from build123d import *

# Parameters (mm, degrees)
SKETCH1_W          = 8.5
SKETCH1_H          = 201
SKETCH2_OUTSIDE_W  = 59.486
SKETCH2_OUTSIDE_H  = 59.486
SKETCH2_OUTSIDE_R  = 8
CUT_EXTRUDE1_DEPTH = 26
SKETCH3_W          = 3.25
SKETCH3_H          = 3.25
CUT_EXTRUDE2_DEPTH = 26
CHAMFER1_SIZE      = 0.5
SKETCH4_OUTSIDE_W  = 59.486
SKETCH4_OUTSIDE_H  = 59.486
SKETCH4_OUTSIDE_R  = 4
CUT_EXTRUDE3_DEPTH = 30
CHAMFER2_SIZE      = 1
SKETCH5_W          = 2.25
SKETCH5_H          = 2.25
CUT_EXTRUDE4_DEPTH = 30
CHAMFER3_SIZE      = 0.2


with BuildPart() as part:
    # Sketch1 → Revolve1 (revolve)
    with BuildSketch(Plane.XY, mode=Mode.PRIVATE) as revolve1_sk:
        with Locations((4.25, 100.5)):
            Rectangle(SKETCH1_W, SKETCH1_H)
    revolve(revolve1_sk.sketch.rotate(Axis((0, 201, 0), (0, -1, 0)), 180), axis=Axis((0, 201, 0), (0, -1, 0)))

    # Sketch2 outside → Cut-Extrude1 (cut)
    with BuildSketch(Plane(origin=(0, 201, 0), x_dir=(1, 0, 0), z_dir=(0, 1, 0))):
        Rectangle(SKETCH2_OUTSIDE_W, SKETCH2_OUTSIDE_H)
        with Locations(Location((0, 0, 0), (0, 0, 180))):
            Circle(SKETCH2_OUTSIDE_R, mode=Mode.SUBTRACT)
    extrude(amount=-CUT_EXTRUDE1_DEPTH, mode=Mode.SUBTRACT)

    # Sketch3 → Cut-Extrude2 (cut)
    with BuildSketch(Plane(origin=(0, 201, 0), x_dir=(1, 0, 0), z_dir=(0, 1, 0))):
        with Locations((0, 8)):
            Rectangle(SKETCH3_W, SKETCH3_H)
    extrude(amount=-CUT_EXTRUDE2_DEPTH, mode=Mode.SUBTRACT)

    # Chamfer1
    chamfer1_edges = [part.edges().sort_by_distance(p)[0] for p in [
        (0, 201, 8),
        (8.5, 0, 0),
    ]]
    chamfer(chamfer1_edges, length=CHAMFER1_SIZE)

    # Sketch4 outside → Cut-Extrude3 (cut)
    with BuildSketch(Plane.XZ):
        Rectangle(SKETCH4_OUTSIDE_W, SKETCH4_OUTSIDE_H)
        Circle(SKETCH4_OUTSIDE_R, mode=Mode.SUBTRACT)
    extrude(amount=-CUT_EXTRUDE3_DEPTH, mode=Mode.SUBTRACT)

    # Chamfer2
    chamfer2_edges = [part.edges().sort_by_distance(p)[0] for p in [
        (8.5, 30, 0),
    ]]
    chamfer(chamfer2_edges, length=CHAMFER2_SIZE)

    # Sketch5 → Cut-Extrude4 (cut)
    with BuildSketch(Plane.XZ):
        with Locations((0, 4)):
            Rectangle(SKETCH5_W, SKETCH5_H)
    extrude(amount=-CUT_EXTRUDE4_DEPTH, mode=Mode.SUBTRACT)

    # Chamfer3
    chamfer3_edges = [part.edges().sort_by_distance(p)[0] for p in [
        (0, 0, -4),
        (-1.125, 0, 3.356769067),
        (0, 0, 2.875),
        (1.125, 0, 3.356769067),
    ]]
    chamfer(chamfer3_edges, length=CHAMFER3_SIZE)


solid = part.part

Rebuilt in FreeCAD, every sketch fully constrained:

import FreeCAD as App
import Part
import Sketcher

V = App.Vector
Q = App.Units.Quantity


def edges_at(feature, points):
    """Names of the edges that pass closest to the given points."""
    edges = feature.Shape.Edges
    near = lambda p: min(range(len(edges)), key=lambda i: edges[i].distToShape(Part.Vertex(*p))[0])
    return sorted({f"Edge{near(p) + 1}" for p in points})

doc = App.newDocument("Part")
body = doc.addObject("PartDesign::Body", "Body")

# Sketch on XY plane
sketch1 = body.newObject("Sketcher::SketchObject", "Sketch")
sketch1.AttachmentSupport = (doc.getObject("XY_Plane"), [""])
sketch1.MapMode = "FlatFace"
sketch1.addGeometry(Part.LineSegment(V(0, 201, 0), V(0, 0, 0)), False)
sketch1.addGeometry(Part.LineSegment(V(0, 0, 0), V(8, 0, 0)), False)
sketch1.addGeometry(Part.LineSegment(V(8, 0, 0), V(8, 201, 0)), False)
sketch1.addGeometry(Part.LineSegment(V(8, 201, 0), V(0, 201, 0)), False)
sketch1.addConstraint(Sketcher.Constraint("Coincident", 0, 2, 1, 1))
sketch1.addConstraint(Sketcher.Constraint("Coincident", 1, 2, 2, 1))
sketch1.addConstraint(Sketcher.Constraint("Coincident", 2, 2, 3, 1))
sketch1.addConstraint(Sketcher.Constraint("Coincident", 3, 2, 0, 1))
sketch1.addConstraint(Sketcher.Constraint("Vertical", 0))
sketch1.addConstraint(Sketcher.Constraint("Horizontal", 1))
sketch1.addConstraint(Sketcher.Constraint("Vertical", 2))
sketch1.addConstraint(Sketcher.Constraint("Horizontal", 3))
sketch1.addConstraint(Sketcher.Constraint("Coincident", 0, 2, -1, 1))
sketch1.addConstraint(Sketcher.Constraint("DistanceY", 0, 2, 0, 1, Q("201 mm")))
sketch1.addConstraint(Sketcher.Constraint("DistanceX", 1, 1, 1, 2, Q("8.5 mm")))
revolution = body.newObject("PartDesign::Revolution", "Revolution")
revolution.Profile = sketch1
revolution.ReferenceAxis = (sketch1, ["V_Axis"])
revolution.Angle = 360

# Sketch on XZ plane
sketch2 = body.newObject("Sketcher::SketchObject", "Sketch001")
sketch2.AttachmentSupport = (doc.getObject("XZ_Plane"), [""])
sketch2.MapMode = "FlatFace"
sketch2.AttachmentOffset = App.Placement(V(0, 0, -201), App.Rotation())
sketch2.addGeometry(Part.LineSegment(V(-30, -30, 0), V(-30, 30, 0)), False)
sketch2.addGeometry(Part.LineSegment(V(-30, 30, 0), V(30, 30, 0)), False)
sketch2.addGeometry(Part.LineSegment(V(30, 30, 0), V(30, -30, 0)), False)
sketch2.addGeometry(Part.LineSegment(V(30, -30, 0), V(-30, -30, 0)), False)
sketch2.addGeometry(Part.Circle(V(0, 0, 0), V(0, 0, 1), 8), False)
sketch2.addConstraint(Sketcher.Constraint("Coincident", 0, 2, 1, 1))
sketch2.addConstraint(Sketcher.Constraint("Coincident", 1, 2, 2, 1))
sketch2.addConstraint(Sketcher.Constraint("Coincident", 2, 2, 3, 1))
sketch2.addConstraint(Sketcher.Constraint("Coincident", 3, 2, 0, 1))
sketch2.addConstraint(Sketcher.Constraint("Vertical", 0))
sketch2.addConstraint(Sketcher.Constraint("Horizontal", 1))
sketch2.addConstraint(Sketcher.Constraint("Vertical", 2))
sketch2.addConstraint(Sketcher.Constraint("Horizontal", 3))
sketch2.addConstraint(Sketcher.Constraint("Coincident", 4, 3, -1, 1))
sketch2.addConstraint(Sketcher.Constraint("Symmetric", 0, 2, 2, 2, -1, 1))
sketch2.addConstraint(Sketcher.Constraint("Equal", 3, 0))
sketch2.addConstraint(Sketcher.Constraint("Diameter", 4, Q("16 mm")))
sketch2.addConstraint(Sketcher.Constraint("DistanceX", 1, 1, 1, 2, Q("59.486 mm")))
pocket1 = body.newObject("PartDesign::Pocket", "Pocket")
pocket1.Profile = sketch2
pocket1.Length = 26
pocket1.Reversed = True

# Sketch on XZ plane
sketch3 = body.newObject("Sketcher::SketchObject", "Sketch002")
sketch3.AttachmentSupport = (doc.getObject("XZ_Plane"), [""])
sketch3.MapMode = "FlatFace"
sketch3.AttachmentOffset = App.Placement(V(0, 0, -201), App.Rotation())
sketch3.addGeometry(Part.LineSegment(V(-1.6, -9.6, 0), V(-1.6, -6.4, 0)), False)
sketch3.addGeometry(Part.LineSegment(V(-1.6, -6.4, 0), V(1.6, -6.4, 0)), False)
sketch3.addGeometry(Part.LineSegment(V(1.6, -6.4, 0), V(1.6, -9.6, 0)), False)
sketch3.addGeometry(Part.LineSegment(V(1.6, -9.6, 0), V(-1.6, -9.6, 0)), False)
sketch3.addConstraint(Sketcher.Constraint("Coincident", 0, 2, 1, 1))
sketch3.addConstraint(Sketcher.Constraint("Coincident", 1, 2, 2, 1))
sketch3.addConstraint(Sketcher.Constraint("Coincident", 2, 2, 3, 1))
sketch3.addConstraint(Sketcher.Constraint("Coincident", 3, 2, 0, 1))
sketch3.addConstraint(Sketcher.Constraint("Vertical", 0))
sketch3.addConstraint(Sketcher.Constraint("Horizontal", 1))
sketch3.addConstraint(Sketcher.Constraint("Vertical", 2))
sketch3.addConstraint(Sketcher.Constraint("Horizontal", 3))
sketch3.addConstraint(Sketcher.Constraint("Equal", 3, 0))
sketch3.addConstraint(Sketcher.Constraint("DistanceX", 1, 1, 1, 2, Q("3.25 mm")))
sketch3.addConstraint(Sketcher.Constraint("DistanceX", 0, 2, -1, 1, Q("1.625 mm")))
sketch3.addConstraint(Sketcher.Constraint("DistanceY", 0, 2, -1, 1, Q("6.375 mm")))
pocket2 = body.newObject("PartDesign::Pocket", "Pocket001")
pocket2.Profile = sketch3
pocket2.Length = 26
pocket2.Reversed = True
doc.recompute()

chamfer = body.newObject("PartDesign::Chamfer", "Chamfer")
chamfer.Base = (pocket2, edges_at(pocket2, [(0, 201, 8), (8.5, 0, 0)]))
chamfer.Size = 0.5

# Sketch on XZ plane
sketch4 = body.newObject("Sketcher::SketchObject", "Sketch003")
sketch4.AttachmentSupport = (doc.getObject("XZ_Plane"), [""])
sketch4.MapMode = "FlatFace"
sketch4.addGeometry(Part.LineSegment(V(-29.7, 29.7, 0), V(-29.7, -29.7, 0)), False)
sketch4.addGeometry(Part.LineSegment(V(-29.7, -29.7, 0), V(29.7, -29.7, 0)), False)
sketch4.addGeometry(Part.LineSegment(V(29.7, -29.7, 0), V(29.7, 29.7, 0)), False)
sketch4.addGeometry(Part.LineSegment(V(29.7, 29.7, 0), V(-29.7, 29.7, 0)), False)
sketch4.addGeometry(Part.Circle(V(0, 0, 0), V(0, 0, 1), 4), False)
sketch4.addConstraint(Sketcher.Constraint("Coincident", 0, 2, 1, 1))
sketch4.addConstraint(Sketcher.Constraint("Coincident", 1, 2, 2, 1))
sketch4.addConstraint(Sketcher.Constraint("Coincident", 2, 2, 3, 1))
sketch4.addConstraint(Sketcher.Constraint("Coincident", 3, 2, 0, 1))
sketch4.addConstraint(Sketcher.Constraint("Vertical", 0))
sketch4.addConstraint(Sketcher.Constraint("Horizontal", 1))
sketch4.addConstraint(Sketcher.Constraint("Vertical", 2))
sketch4.addConstraint(Sketcher.Constraint("Horizontal", 3))
sketch4.addConstraint(Sketcher.Constraint("Coincident", 4, 3, -1, 1))
sketch4.addConstraint(Sketcher.Constraint("Symmetric", 0, 2, 2, 2, -1, 1))
sketch4.addConstraint(Sketcher.Constraint("Equal", 3, 0))
sketch4.addConstraint(Sketcher.Constraint("Diameter", 4, Q("8 mm")))
sketch4.addConstraint(Sketcher.Constraint("DistanceX", 1, 1, 1, 2, Q("59.486 mm")))
pocket3 = body.newObject("PartDesign::Pocket", "Pocket002")
pocket3.Profile = sketch4
pocket3.Length = 30
doc.recompute()

chamfer2 = body.newObject("PartDesign::Chamfer", "Chamfer001")
chamfer2.Base = (pocket3, edges_at(pocket3, [(8.5, 30, 0)]))
chamfer2.Size = 1

# Sketch on XZ plane
sketch5 = body.newObject("Sketcher::SketchObject", "Sketch004")
sketch5.AttachmentSupport = (doc.getObject("XZ_Plane"), [""])
sketch5.MapMode = "FlatFace"
sketch5.addGeometry(Part.LineSegment(V(-1.1, 5.1, 0), V(-1.1, 2.9, 0)), False)
sketch5.addGeometry(Part.LineSegment(V(-1.1, 2.9, 0), V(1.1, 2.9, 0)), False)
sketch5.addGeometry(Part.LineSegment(V(1.1, 2.9, 0), V(1.1, 5.1, 0)), False)
sketch5.addGeometry(Part.LineSegment(V(1.1, 5.1, 0), V(-1.1, 5.1, 0)), False)
sketch5.addConstraint(Sketcher.Constraint("Coincident", 0, 2, 1, 1))
sketch5.addConstraint(Sketcher.Constraint("Coincident", 1, 2, 2, 1))
sketch5.addConstraint(Sketcher.Constraint("Coincident", 2, 2, 3, 1))
sketch5.addConstraint(Sketcher.Constraint("Coincident", 3, 2, 0, 1))
sketch5.addConstraint(Sketcher.Constraint("Vertical", 0))
sketch5.addConstraint(Sketcher.Constraint("Horizontal", 1))
sketch5.addConstraint(Sketcher.Constraint("Vertical", 2))
sketch5.addConstraint(Sketcher.Constraint("Horizontal", 3))
sketch5.addConstraint(Sketcher.Constraint("Equal", 3, 0))
sketch5.addConstraint(Sketcher.Constraint("DistanceX", 1, 1, 1, 2, Q("2.25 mm")))
sketch5.addConstraint(Sketcher.Constraint("DistanceX", 0, 2, -1, 1, Q("1.125 mm")))
sketch5.addConstraint(Sketcher.Constraint("DistanceY", -1, 1, 0, 2, Q("2.875 mm")))
pocket4 = body.newObject("PartDesign::Pocket", "Pocket003")
pocket4.Profile = sketch5
pocket4.Length = 30
doc.recompute()

chamfer3 = body.newObject("PartDesign::Chamfer", "Chamfer002")
chamfer3.Base = (pocket4, edges_at(pocket4, [
    (0, 0, -4),
    (-1.125, 0, 3.357),
    (0, 0, 2.875),
    (1.125, 0, 3.357),
]))
chamfer3.Size = 0.2

doc.recompute()
